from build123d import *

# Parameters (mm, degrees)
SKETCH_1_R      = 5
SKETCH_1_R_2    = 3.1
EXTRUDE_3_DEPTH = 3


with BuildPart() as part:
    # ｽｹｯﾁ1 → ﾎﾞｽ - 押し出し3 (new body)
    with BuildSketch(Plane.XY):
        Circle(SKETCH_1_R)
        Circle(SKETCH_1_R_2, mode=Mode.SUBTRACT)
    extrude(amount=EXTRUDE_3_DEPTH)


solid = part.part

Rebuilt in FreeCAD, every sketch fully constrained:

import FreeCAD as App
import Part
import Sketcher

doc = App.newDocument("Part")
body = doc.addObject("PartDesign::Body", "Body")

# Sketch on XY plane
sketch1 = doc.addObject("Sketcher::SketchObject", "Sketch")
body.addObject(sketch1)
sketch1.AttachmentSupport = (doc.XY_Plane, [""])
sketch1.MapMode = "FlatFace"
sketch1.addGeometry(Part.Circle(App.Vector(0, 0, 0), App.Vector(0, 0, 1), 5), False)
sketch1.addGeometry(Part.Circle(App.Vector(0, 0, 0), App.Vector(0, 0, 1), 3.1), False)
sketch1.addConstraint(Sketcher.Constraint("Coincident", 0, 3, -1, 1))
sketch1.addConstraint(Sketcher.Constraint("Coincident", 1, 3, -1, 1))
sketch1.addConstraint(Sketcher.Constraint("Diameter", 0, 10.0))
sketch1.addConstraint(Sketcher.Constraint("Diameter", 1, 6.2))
pad1 = doc.addObject("PartDesign::Pad", "Pad")
body.addObject(pad1)
pad1.Profile = sketch1
pad1.Length = 3

doc.recompute()
